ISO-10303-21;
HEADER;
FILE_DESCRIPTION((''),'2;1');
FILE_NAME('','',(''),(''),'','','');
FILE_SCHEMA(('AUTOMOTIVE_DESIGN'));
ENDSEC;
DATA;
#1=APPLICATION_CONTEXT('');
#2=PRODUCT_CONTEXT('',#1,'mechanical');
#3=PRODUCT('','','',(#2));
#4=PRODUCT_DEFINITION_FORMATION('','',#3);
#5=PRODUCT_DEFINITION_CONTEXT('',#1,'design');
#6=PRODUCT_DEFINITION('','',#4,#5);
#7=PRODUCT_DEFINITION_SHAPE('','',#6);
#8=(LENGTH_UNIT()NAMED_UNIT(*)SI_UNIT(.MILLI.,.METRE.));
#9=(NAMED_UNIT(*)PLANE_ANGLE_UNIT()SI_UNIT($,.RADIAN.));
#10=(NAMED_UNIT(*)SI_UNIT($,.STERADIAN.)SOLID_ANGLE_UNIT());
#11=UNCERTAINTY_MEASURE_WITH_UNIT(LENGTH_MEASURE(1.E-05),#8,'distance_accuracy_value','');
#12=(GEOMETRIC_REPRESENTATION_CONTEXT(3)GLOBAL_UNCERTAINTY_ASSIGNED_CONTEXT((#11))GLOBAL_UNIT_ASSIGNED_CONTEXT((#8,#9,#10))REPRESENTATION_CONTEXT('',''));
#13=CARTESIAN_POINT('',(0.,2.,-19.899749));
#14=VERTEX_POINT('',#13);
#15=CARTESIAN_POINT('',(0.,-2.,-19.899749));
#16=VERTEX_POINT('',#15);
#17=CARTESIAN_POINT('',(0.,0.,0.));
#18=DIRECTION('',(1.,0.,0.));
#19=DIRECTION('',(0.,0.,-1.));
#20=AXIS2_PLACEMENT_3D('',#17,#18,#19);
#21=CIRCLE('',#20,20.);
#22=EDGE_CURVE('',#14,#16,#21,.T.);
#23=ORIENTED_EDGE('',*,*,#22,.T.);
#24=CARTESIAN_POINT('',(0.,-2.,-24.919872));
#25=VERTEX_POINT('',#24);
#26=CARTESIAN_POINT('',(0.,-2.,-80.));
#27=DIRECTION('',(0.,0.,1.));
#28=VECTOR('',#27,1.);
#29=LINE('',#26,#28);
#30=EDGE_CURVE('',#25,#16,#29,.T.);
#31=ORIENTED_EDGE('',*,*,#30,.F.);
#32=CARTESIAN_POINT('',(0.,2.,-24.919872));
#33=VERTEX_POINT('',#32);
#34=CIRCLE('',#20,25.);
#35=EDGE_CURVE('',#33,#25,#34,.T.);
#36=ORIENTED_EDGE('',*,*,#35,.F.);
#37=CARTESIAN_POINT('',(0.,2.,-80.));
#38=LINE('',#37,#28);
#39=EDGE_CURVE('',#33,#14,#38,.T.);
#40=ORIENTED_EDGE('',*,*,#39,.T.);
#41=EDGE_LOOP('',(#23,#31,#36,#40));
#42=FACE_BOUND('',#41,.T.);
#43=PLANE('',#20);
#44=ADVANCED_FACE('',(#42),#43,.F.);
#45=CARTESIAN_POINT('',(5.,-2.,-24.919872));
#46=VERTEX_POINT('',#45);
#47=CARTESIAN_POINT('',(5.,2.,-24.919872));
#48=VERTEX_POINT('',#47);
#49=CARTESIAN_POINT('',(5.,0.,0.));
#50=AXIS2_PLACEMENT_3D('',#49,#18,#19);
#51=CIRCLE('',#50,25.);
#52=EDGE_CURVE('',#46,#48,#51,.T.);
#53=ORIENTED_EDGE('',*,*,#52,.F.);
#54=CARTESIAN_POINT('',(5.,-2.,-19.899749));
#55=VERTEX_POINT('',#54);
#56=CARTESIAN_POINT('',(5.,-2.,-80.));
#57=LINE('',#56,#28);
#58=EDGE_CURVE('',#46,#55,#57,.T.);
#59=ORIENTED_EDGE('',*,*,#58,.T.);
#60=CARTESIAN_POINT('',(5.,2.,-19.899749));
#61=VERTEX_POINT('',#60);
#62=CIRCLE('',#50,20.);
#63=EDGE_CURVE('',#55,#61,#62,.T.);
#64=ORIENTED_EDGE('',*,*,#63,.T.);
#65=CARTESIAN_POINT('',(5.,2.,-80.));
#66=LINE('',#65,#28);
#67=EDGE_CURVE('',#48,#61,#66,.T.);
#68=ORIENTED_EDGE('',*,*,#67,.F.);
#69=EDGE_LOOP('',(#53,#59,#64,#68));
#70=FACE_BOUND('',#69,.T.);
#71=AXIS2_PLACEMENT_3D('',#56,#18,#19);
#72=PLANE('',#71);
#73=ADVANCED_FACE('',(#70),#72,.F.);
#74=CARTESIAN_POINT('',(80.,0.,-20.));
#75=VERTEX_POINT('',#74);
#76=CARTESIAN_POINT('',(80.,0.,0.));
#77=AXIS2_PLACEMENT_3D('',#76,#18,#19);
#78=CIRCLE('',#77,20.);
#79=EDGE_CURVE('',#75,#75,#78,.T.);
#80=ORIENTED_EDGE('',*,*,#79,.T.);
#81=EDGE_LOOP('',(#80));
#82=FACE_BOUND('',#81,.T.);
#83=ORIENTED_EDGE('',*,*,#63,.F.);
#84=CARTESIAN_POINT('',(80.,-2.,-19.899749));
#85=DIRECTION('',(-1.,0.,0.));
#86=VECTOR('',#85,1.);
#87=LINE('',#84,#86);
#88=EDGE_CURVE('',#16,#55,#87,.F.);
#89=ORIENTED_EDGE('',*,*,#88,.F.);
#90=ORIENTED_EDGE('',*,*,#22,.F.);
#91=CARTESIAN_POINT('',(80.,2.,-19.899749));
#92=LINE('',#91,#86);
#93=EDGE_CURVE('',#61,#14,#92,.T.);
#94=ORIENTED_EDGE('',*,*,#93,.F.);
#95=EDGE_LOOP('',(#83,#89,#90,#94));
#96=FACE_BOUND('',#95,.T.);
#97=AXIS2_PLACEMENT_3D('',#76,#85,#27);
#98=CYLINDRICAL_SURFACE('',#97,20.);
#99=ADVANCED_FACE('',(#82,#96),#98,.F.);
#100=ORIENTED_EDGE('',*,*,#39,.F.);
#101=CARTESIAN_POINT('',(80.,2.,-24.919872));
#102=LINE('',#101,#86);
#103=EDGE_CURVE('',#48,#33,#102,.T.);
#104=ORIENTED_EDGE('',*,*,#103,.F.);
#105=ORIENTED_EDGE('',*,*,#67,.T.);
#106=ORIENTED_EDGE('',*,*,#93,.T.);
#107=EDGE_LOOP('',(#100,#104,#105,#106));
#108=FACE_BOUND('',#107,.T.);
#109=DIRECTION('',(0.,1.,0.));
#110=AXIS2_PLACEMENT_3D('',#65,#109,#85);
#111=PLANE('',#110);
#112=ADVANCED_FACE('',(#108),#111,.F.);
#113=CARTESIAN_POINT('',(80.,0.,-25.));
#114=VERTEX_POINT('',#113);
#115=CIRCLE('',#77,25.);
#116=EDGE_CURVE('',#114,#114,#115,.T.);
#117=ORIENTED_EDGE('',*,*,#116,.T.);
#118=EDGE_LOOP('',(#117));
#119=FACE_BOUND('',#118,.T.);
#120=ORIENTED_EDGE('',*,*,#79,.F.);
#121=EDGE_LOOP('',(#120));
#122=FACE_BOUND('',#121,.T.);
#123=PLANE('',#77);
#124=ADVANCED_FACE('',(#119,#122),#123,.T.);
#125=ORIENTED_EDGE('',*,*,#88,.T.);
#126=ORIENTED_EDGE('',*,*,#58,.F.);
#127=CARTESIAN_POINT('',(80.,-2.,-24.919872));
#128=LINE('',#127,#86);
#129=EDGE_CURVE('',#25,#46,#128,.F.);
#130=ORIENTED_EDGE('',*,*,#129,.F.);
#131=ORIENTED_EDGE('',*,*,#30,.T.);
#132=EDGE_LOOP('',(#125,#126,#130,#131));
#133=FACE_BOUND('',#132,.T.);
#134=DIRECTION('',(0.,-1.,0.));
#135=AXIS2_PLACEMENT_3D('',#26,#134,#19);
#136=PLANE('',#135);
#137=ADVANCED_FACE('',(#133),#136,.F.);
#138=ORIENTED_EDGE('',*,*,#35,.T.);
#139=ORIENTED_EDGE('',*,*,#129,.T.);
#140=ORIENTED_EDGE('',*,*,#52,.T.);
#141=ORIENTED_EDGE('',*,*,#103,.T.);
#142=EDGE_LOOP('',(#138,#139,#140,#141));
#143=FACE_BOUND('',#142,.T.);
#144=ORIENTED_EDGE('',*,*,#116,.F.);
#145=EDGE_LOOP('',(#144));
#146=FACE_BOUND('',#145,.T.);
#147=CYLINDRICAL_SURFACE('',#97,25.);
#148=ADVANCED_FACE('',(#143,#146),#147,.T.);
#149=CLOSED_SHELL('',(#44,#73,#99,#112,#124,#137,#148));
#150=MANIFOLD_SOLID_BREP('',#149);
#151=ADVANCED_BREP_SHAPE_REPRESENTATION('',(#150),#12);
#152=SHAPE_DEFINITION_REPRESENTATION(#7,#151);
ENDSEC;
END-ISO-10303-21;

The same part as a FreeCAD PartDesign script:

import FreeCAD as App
import Part
import Sketcher
Q = App.Units.Quantity


def add_polygon(sketch, points):
    """Adds a closed chain of lines whose ends are joined by coincident constraints."""
    first, n = sketch.GeometryCount, len(points)
    for a, b in zip(points, points[1:] + points[:1]):
        sketch.addGeometry(Part.LineSegment(App.Vector(*a, 0), App.Vector(*b, 0)), False)
    for i in range(n):
        sketch.addConstraint(Sketcher.Constraint("Coincident", first + i, 2, first + (i + 1) % n, 1))

doc = App.newDocument("Part")
body = doc.addObject("PartDesign::Body", "Body")

sketch1 = body.newObject("Sketcher::SketchObject", "Sketch")
sketch1.AttachmentSupport = (doc.getObject("YZ_Plane"), [""])
sketch1.MapMode = "FlatFace"
sketch1.addGeometry([
    Part.Circle(App.Vector(0, 0, 0), App.Vector(0, 0, 1), 25),
    Part.Circle(App.Vector(0, 0, 0), App.Vector(0, 0, 1), 20),
], False)
sketch1.addConstraint([
    Sketcher.Constraint("Coincident", 0, 3, -1, 1),
    Sketcher.Constraint("Coincident", 1, 3, -1, 1),
    Sketcher.Constraint("Diameter", 0, Q("50 mm")),
    Sketcher.Constraint("Diameter", 1, Q("40 mm")),
])
pad1 = body.newObject("PartDesign::Pad", "Pad")
pad1.Profile = sketch1
pad1.Length = 80

sketch2 = body.newObject("Sketcher::SketchObject", "Sketch001")
sketch2.AttachmentSupport = (doc.getObject("XY_Plane"), [""])
sketch2.MapMode = "FlatFace"
add_polygon(sketch2, [(0, 2), (0, -2), (5, -2), (5, 2)])
sketch2.addConstraint([
    Sketcher.Constraint("Vertical", 0),
    Sketcher.Constraint("Horizontal", 1),
    Sketcher.Constraint("Vertical", 2),
    Sketcher.Constraint("Horizontal", 3),
    Sketcher.Constraint("Symmetric", 0, 2, 3, 2, -1, 1),
    Sketcher.Constraint("DistanceX", 1, 1, 1, 2, Q("5 mm")),
    Sketcher.Constraint("DistanceY", 0, 2, 0, 1, Q("4 mm")),
])
pocket1 = body.newObject("PartDesign::Pocket", "Pocket")
pocket1.Profile = sketch2
pocket1.Length = 80

doc.recompute()
